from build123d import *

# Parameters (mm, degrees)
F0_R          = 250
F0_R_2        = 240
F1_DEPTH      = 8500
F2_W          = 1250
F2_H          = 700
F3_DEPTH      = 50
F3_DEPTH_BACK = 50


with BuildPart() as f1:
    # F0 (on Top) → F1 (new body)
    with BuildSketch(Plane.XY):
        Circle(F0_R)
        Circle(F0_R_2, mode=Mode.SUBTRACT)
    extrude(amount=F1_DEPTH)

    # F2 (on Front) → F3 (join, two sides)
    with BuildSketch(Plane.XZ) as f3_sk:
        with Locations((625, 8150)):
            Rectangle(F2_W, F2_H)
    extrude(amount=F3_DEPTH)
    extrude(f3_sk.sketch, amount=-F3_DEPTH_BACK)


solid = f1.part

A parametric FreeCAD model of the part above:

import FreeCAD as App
import Part
import Sketcher


def add_polygon(sketch, points):
    """Adds a closed chain of lines whose ends are joined by coincident constraints."""
    first, n = sketch.GeometryCount, len(points)
    for a, b in zip(points, points[1:] + points[:1]):
        sketch.addGeometry(Part.LineSegment(App.Vector(*a, 0), App.Vector(*b, 0)), False)
    for i in range(n):
        sketch.addConstraint(Sketcher.Constraint("Coincident", first + i, 2, first + (i + 1) % n, 1))

doc = App.newDocument("Part")
params = doc.addObject("Spreadsheet::Sheet", "Params")
for row, (alias, value) in enumerate([
    ("sketch1_diameter", "500 mm"),
    ("sketch1_diameter2", "480 mm"),
    ("pad1_length", "8500 mm"),
    ("sketch2_width", "1250 mm"),
    ("sketch2_height", "700 mm"),
    ("pad2_length", "50 mm"),
    ("pad2_length2", "50 mm"),
], start=1):
    params.set(f"A{row}", alias)
    params.set(f"B{row}", "=" + value)
    params.setAlias(f"B{row}", alias)

body = doc.addObject("PartDesign::Body", "Body")

sketch1 = body.newObject("Sketcher::SketchObject", "Sketch")
sketch1.AttachmentSupport = (doc.getObject("XY_Plane"), [""])
sketch1.MapMode = "FlatFace"
sketch1.addGeometry([
    Part.Circle(App.Vector(0, 0, 0), App.Vector(0, 0, 1), 250),
    Part.Circle(App.Vector(0, 0, 0), App.Vector(0, 0, 1), 240),
], False)
sketch1.addConstraint([
    Sketcher.Constraint("Coincident", 0, 3, -1, 1),
    Sketcher.Constraint("Coincident", 1, 3, -1, 1),
    Sketcher.Constraint("Diameter", 0, 500.0),
    Sketcher.Constraint("Diameter", 1, 480.0),
])
sketch1.setExpression("Constraints[2]", "Params.sketch1_diameter")
sketch1.setExpression("Constraints[3]", "Params.sketch1_diameter2")
pad1 = body.newObject("PartDesign::Pad", "Pad")
pad1.Profile = sketch1
pad1.setExpression("Length", "Params.pad1_length")

sketch2 = body.newObject("Sketcher::SketchObject", "Sketch001")
sketch2.AttachmentSupport = (doc.getObject("XZ_Plane"), [""])
sketch2.MapMode = "FlatFace"
add_polygon(sketch2, [(0, 8500), (0, 7800), (1250, 7800), (1250, 8500)])
sketch2.addConstraint([
    Sketcher.Constraint("Vertical", 0),
    Sketcher.Constraint("Horizontal", 1),
    Sketcher.Constraint("Vertical", 2),
    Sketcher.Constraint("Horizontal", 3),
    Sketcher.Constraint("PointOnObject", 0, 2, -2),
    Sketcher.Constraint("DistanceX", 1, 1, 1, 2, 1250.0),
    Sketcher.Constraint("DistanceY", 0, 2, 0, 1, 700.0),
    Sketcher.Constraint("DistanceY", -1, 1, 0, 2, 7800.0),
])
sketch2.setExpression("Constraints[9]", "Params.sketch2_width")
sketch2.setExpression("Constraints[10]", "Params.sketch2_height")
pad2 = body.newObject("PartDesign::Pad", "Pad001")
pad2.Profile = sketch2
pad2.Type = "TwoLengths"
pad2.setExpression("Length", "Params.pad2_length")
pad2.setExpression("Length2", "Params.pad2_length2")

doc.recompute()
